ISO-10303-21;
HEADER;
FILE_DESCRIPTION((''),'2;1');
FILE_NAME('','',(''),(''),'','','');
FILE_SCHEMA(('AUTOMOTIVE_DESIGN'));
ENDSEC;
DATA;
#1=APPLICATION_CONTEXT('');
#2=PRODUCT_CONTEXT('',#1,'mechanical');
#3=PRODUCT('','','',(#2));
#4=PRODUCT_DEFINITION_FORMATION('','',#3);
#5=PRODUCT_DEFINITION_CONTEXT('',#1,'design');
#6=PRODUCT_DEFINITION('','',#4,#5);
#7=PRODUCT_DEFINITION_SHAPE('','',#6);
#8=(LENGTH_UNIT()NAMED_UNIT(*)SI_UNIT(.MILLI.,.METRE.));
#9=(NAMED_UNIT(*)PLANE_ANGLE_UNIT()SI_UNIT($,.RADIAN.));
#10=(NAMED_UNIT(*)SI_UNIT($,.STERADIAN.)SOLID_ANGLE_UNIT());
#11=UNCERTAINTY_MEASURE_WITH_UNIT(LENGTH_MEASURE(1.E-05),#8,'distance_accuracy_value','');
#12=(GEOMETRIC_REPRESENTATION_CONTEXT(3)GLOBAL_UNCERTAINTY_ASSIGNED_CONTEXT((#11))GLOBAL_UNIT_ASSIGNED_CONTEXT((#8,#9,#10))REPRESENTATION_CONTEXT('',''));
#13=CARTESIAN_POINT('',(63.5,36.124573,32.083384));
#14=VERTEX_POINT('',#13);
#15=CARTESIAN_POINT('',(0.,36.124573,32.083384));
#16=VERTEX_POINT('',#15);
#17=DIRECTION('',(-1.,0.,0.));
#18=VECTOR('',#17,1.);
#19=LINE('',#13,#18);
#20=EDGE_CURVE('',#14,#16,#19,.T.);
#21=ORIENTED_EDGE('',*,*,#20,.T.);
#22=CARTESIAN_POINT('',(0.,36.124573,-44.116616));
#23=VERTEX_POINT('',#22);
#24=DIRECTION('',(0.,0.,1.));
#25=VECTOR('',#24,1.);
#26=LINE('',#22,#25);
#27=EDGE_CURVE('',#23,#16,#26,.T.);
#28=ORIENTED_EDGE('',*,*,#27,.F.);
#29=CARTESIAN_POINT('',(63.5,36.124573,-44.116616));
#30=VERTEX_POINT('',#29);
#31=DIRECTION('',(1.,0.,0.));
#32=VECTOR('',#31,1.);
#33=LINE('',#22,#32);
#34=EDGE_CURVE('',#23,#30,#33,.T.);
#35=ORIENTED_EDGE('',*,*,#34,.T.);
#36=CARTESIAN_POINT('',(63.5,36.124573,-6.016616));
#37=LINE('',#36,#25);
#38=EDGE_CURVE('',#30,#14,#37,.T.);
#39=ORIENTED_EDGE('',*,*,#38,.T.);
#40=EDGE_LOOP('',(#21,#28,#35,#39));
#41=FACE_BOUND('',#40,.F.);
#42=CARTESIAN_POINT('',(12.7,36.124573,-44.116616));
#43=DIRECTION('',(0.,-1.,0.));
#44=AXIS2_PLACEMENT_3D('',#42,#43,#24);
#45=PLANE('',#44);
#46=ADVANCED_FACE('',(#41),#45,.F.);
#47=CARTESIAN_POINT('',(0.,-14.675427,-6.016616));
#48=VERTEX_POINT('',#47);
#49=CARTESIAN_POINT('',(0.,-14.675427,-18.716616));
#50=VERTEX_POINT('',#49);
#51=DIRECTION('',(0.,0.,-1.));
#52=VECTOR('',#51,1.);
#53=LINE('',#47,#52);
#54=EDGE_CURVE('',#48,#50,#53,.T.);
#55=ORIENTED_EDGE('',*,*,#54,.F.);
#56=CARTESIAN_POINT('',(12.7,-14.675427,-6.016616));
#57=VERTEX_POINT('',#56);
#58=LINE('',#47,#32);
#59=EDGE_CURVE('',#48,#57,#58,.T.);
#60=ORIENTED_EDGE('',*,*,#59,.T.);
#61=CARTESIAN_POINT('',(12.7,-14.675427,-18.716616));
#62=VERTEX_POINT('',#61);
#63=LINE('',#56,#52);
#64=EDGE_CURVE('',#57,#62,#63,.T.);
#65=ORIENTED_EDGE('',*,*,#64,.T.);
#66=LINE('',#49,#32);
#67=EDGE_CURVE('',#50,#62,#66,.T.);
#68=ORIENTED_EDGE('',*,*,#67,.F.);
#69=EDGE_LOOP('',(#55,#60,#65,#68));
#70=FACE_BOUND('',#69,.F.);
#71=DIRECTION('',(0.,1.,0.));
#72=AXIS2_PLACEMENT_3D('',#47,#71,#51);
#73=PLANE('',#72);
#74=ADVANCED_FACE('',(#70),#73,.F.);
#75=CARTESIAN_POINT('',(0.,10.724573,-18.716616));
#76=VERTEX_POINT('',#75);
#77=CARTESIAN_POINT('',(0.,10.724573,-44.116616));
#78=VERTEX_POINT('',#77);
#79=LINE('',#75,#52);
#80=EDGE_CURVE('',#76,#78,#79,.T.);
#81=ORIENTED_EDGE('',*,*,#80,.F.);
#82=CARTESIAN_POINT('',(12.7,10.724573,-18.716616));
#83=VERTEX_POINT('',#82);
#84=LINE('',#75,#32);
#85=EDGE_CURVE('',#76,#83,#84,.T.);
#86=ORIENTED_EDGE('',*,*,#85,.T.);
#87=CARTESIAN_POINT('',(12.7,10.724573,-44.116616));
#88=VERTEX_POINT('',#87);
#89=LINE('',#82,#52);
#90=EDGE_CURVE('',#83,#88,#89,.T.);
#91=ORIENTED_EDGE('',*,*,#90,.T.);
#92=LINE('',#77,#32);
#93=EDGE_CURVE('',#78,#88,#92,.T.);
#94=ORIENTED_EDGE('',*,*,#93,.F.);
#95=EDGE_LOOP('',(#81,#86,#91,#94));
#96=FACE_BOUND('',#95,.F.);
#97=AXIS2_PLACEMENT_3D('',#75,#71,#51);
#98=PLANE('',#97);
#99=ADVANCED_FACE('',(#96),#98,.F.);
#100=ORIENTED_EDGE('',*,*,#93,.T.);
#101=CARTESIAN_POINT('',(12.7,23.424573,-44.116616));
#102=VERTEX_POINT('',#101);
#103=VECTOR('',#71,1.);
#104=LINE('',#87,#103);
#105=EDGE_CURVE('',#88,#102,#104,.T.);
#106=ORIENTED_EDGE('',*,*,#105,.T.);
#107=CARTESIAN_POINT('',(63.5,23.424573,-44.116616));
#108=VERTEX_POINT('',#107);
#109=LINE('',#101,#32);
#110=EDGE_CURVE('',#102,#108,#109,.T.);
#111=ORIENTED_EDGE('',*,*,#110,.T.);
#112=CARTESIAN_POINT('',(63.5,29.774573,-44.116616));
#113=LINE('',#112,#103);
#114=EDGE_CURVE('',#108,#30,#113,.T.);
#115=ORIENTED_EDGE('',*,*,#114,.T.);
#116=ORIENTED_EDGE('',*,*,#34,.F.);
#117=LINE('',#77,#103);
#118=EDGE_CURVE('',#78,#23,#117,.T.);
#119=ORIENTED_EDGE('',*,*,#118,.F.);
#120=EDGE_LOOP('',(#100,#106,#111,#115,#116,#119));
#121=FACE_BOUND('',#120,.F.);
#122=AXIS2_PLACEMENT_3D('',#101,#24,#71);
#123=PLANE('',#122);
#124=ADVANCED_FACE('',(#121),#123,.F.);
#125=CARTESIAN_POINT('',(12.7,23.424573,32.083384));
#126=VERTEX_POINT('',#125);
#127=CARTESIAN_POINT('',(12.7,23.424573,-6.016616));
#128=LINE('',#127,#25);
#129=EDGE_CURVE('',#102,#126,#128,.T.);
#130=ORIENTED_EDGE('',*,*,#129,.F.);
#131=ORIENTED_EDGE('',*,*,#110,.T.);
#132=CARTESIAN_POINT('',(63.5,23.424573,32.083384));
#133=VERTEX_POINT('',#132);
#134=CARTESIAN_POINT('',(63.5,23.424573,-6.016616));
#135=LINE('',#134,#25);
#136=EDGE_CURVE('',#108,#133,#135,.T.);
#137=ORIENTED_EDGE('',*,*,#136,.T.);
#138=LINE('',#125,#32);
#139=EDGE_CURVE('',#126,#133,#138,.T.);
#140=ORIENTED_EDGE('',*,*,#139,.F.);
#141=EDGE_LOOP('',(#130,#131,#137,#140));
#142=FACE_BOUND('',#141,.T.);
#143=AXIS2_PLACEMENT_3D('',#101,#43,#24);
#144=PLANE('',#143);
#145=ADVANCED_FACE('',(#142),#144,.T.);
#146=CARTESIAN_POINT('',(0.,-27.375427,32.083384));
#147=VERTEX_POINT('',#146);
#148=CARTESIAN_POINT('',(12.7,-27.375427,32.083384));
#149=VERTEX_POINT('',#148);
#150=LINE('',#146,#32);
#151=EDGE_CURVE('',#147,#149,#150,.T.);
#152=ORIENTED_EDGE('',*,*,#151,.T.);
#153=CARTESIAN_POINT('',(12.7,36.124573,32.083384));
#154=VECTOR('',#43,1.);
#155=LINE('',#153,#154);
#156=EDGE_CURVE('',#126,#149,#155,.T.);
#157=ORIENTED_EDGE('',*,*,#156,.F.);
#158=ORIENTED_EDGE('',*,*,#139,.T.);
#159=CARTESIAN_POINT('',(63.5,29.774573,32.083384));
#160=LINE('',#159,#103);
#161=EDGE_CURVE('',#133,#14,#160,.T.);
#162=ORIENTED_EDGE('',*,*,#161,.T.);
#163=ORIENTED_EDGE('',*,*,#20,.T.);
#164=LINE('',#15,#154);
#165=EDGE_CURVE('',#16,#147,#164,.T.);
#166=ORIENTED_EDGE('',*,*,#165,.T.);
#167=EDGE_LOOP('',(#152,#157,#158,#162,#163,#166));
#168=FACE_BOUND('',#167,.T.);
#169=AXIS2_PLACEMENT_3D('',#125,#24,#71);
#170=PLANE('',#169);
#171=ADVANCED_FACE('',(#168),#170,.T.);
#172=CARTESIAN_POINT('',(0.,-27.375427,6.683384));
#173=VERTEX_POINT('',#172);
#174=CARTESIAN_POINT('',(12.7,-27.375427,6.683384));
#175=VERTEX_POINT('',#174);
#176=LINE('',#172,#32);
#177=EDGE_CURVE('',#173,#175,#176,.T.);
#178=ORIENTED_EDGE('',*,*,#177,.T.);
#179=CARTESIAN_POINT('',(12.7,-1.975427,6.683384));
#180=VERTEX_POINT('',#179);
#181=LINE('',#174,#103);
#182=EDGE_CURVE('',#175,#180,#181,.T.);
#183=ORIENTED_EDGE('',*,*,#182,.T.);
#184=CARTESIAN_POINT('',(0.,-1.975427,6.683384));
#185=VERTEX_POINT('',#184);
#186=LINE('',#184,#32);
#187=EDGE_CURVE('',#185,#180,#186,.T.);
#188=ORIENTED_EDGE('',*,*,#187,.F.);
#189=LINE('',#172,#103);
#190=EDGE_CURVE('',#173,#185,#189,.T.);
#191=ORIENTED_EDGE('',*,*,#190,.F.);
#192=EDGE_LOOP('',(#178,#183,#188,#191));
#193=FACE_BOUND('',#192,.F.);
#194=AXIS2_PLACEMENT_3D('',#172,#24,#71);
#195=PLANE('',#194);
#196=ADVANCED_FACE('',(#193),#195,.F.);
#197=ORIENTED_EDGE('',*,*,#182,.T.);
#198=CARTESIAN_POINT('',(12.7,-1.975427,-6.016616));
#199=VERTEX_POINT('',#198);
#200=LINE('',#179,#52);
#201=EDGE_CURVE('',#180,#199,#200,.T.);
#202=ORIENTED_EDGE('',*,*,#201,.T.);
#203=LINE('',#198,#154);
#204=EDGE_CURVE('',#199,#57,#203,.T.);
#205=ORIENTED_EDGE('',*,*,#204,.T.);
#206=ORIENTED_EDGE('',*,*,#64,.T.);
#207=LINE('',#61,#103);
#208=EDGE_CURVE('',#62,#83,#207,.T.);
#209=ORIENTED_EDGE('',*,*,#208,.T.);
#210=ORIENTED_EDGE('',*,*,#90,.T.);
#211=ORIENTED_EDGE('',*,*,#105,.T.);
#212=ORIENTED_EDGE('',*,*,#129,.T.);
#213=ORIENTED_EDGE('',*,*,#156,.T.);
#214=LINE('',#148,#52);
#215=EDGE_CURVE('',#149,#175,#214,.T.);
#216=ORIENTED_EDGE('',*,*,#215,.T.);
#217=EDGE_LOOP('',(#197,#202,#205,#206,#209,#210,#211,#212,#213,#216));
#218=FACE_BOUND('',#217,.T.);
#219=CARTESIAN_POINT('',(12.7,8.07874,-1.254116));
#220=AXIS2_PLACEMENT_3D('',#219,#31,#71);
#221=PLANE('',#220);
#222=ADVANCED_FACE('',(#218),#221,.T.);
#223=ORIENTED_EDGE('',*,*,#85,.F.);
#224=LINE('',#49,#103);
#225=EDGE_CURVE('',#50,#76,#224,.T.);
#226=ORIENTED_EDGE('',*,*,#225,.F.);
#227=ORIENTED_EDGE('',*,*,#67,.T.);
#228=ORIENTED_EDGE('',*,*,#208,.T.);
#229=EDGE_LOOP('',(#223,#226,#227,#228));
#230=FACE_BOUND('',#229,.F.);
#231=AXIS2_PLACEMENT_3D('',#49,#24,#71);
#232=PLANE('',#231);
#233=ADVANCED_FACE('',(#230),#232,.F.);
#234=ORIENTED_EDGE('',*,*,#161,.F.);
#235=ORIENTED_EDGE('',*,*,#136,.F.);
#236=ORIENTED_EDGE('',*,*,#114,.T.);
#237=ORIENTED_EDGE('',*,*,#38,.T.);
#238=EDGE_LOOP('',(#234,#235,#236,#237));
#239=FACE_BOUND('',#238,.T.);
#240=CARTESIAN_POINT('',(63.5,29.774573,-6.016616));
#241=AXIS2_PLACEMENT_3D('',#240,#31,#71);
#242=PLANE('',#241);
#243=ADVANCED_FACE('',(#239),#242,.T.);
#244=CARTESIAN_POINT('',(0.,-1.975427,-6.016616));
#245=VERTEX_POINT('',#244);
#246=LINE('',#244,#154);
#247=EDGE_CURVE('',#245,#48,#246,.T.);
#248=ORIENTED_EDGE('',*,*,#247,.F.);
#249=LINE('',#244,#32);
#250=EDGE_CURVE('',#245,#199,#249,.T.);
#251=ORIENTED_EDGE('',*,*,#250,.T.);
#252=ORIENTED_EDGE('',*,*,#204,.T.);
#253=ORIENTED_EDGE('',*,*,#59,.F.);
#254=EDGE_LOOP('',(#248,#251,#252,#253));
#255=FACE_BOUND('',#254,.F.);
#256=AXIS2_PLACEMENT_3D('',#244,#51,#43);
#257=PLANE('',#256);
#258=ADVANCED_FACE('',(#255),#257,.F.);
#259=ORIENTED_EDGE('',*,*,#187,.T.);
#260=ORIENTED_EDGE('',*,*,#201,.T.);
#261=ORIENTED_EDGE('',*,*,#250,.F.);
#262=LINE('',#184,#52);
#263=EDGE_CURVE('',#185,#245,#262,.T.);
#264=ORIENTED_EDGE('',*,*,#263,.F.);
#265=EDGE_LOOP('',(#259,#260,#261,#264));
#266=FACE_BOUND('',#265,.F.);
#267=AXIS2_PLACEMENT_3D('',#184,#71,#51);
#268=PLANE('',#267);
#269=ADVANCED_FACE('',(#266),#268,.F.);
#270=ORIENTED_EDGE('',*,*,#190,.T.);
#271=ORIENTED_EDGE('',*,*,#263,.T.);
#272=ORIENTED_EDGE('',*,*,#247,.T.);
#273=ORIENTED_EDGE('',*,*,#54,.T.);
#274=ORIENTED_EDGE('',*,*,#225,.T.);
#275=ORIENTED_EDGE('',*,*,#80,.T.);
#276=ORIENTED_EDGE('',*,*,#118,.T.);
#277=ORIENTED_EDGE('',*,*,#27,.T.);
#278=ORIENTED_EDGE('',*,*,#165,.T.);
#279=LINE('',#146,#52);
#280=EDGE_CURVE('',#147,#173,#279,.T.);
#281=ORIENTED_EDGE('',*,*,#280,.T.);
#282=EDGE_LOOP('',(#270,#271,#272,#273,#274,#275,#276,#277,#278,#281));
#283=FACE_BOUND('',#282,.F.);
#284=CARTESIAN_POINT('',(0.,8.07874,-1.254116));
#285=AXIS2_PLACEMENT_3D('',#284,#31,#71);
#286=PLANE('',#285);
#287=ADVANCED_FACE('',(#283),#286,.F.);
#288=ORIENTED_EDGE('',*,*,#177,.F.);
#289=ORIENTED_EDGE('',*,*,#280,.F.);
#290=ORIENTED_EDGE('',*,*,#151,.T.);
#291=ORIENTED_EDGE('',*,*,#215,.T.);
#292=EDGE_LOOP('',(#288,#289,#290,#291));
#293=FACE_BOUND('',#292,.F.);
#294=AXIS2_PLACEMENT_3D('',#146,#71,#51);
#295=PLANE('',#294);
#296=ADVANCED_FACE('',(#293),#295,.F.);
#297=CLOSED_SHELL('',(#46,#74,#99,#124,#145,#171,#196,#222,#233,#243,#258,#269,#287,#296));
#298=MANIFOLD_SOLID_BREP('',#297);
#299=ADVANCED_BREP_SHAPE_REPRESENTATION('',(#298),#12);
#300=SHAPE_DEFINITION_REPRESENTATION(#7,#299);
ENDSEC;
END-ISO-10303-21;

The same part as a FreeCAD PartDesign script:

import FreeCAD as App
import Part
import Sketcher
Q = App.Units.Quantity

doc = App.newDocument("Part")
body = doc.addObject("PartDesign::Body", "Body")

# Sketch on YZ plane
sketch1 = body.newObject("Sketcher::SketchObject", "Sketch")
sketch1.AttachmentSupport = (doc.getObject("YZ_Plane"), [""])
sketch1.MapMode = "FlatFace"
sketch1.addGeometry([
    Part.LineSegment(App.Vector(10.724573, -44.116616, 0), App.Vector(36.124573, -44.116616, 0)),  # 0
    Part.LineSegment(App.Vector(36.124573, -44.116616, 0), App.Vector(36.124573, 32.083384, 0)),  # 1
    Part.LineSegment(App.Vector(36.124573, 32.083384, 0), App.Vector(-27.375427, 32.083384, 0)),  # 2
    Part.LineSegment(App.Vector(-27.375427, 32.083384, 0), App.Vector(-27.375427, 6.683384, 0)),  # 3
    Part.LineSegment(App.Vector(-27.375427, 6.683384, 0), App.Vector(-1.975427, 6.683384, 0)),  # 4
    Part.LineSegment(App.Vector(-1.975427, 6.683384, 0), App.Vector(-1.975427, -6.016616, 0)),  # 5
    Part.LineSegment(App.Vector(-1.975427, -6.016616, 0), App.Vector(-14.675427, -6.016616, 0)),  # 6
    Part.LineSegment(App.Vector(-14.675427, -6.016616, 0), App.Vector(-14.675427, -18.716616, 0)),  # 7
    Part.LineSegment(App.Vector(-14.675427, -18.716616, 0), App.Vector(10.724573, -18.716616, 0)),  # 8
    Part.LineSegment(App.Vector(10.724573, -18.716616, 0), App.Vector(10.724573, -44.116616, 0)),  # 9
], False)
sketch1.addConstraint([
    Sketcher.Constraint("Coincident", 0, 2, 1, 1),
    Sketcher.Constraint("Coincident", 1, 2, 2, 1),
    Sketcher.Constraint("Coincident", 2, 2, 3, 1),
    Sketcher.Constraint("Coincident", 3, 2, 4, 1),
    Sketcher.Constraint("Coincident", 4, 2, 5, 1),
    Sketcher.Constraint("Coincident", 5, 2, 6, 1),
    Sketcher.Constraint("Coincident", 6, 2, 7, 1),
    Sketcher.Constraint("Coincident", 7, 2, 8, 1),
    Sketcher.Constraint("Coincident", 8, 2, 9, 1),
    Sketcher.Constraint("Coincident", 9, 2, 0, 1),
    Sketcher.Constraint("Horizontal", 0),
    Sketcher.Constraint("Vertical", 1),
    Sketcher.Constraint("Horizontal", 2),
    Sketcher.Constraint("Vertical", 3),
    Sketcher.Constraint("Horizontal", 4),
    Sketcher.Constraint("Vertical", 5),
    Sketcher.Constraint("Horizontal", 6),
    Sketcher.Constraint("Vertical", 7),
    Sketcher.Constraint("Horizontal", 8),
    Sketcher.Constraint("Vertical", 9),
    Sketcher.Constraint("Equal", 0, 4),
    Sketcher.Constraint("Equal", 4, 8),
    Sketcher.Constraint("Equal", 8, 3),
    Sketcher.Constraint("Equal", 6, 5),
    Sketcher.Constraint("Equal", 5, 7),
    Sketcher.Constraint("Equal", 3, 9),
    Sketcher.Constraint("DistanceX", 0, 1, 0, 2, Q("1 in")),
    Sketcher.Constraint("DistanceY", 1, 1, 1, 2, Q("3 in")),
    Sketcher.Constraint("DistanceX", -1, 1, 0, 2, 36.124573),
    Sketcher.Constraint("DistanceY", 0, 2, -1, 1, 44.116616),
])
pad1 = body.newObject("PartDesign::Pad", "Pad")
pad1.Profile = sketch1
pad1.Length = Q("0.5 in")

# Sketch on YZ plane
sketch2 = body.newObject("Sketcher::SketchObject", "Sketch001")
sketch2.AttachmentSupport = (doc.getObject("YZ_Plane"), [""])
sketch2.MapMode = "FlatFace"
sketch2.AttachmentOffset = App.Placement(App.Vector(0, 0, 0.5 * 25.4), App.Rotation())
sketch2.addGeometry([
    Part.LineSegment(App.Vector(23.424573, 32.083384, 0), App.Vector(23.424573, -44.116616, 0)),
    Part.LineSegment(App.Vector(23.424573, -44.116616, 0), App.Vector(36.124573, -44.116616, 0)),
    Part.LineSegment(App.Vector(36.124573, -44.116616, 0), App.Vector(36.124573, 32.083384, 0)),
    Part.LineSegment(App.Vector(36.124573, 32.083384, 0), App.Vector(23.424573, 32.083384, 0)),
], False)
sketch2.addConstraint([
    Sketcher.Constraint("Coincident", 0, 2, 1, 1),
    Sketcher.Constraint("Coincident", 1, 2, 2, 1),
    Sketcher.Constraint("Coincident", 2, 2, 3, 1),
    Sketcher.Constraint("Coincident", 3, 2, 0, 1),
    Sketcher.Constraint("Vertical", 0),
    Sketcher.Constraint("Horizontal", 1),
    Sketcher.Constraint("Vertical", 2),
    Sketcher.Constraint("Horizontal", 3),
    Sketcher.Constraint("DistanceY", 0, 2, 0, 1, Q("3 in")),
    Sketcher.Constraint("DistanceX", 1, 1, 1, 2, Q("0.5 in")),
    Sketcher.Constraint("DistanceX", -1, 1, 0, 2, 23.424573),
    Sketcher.Constraint("DistanceY", 0, 2, -1, 1, 44.116616),
])
pad2 = body.newObject("PartDesign::Pad", "Pad001")
pad2.Profile = sketch2
pad2.Length = Q("2 in")

doc.recompute()
